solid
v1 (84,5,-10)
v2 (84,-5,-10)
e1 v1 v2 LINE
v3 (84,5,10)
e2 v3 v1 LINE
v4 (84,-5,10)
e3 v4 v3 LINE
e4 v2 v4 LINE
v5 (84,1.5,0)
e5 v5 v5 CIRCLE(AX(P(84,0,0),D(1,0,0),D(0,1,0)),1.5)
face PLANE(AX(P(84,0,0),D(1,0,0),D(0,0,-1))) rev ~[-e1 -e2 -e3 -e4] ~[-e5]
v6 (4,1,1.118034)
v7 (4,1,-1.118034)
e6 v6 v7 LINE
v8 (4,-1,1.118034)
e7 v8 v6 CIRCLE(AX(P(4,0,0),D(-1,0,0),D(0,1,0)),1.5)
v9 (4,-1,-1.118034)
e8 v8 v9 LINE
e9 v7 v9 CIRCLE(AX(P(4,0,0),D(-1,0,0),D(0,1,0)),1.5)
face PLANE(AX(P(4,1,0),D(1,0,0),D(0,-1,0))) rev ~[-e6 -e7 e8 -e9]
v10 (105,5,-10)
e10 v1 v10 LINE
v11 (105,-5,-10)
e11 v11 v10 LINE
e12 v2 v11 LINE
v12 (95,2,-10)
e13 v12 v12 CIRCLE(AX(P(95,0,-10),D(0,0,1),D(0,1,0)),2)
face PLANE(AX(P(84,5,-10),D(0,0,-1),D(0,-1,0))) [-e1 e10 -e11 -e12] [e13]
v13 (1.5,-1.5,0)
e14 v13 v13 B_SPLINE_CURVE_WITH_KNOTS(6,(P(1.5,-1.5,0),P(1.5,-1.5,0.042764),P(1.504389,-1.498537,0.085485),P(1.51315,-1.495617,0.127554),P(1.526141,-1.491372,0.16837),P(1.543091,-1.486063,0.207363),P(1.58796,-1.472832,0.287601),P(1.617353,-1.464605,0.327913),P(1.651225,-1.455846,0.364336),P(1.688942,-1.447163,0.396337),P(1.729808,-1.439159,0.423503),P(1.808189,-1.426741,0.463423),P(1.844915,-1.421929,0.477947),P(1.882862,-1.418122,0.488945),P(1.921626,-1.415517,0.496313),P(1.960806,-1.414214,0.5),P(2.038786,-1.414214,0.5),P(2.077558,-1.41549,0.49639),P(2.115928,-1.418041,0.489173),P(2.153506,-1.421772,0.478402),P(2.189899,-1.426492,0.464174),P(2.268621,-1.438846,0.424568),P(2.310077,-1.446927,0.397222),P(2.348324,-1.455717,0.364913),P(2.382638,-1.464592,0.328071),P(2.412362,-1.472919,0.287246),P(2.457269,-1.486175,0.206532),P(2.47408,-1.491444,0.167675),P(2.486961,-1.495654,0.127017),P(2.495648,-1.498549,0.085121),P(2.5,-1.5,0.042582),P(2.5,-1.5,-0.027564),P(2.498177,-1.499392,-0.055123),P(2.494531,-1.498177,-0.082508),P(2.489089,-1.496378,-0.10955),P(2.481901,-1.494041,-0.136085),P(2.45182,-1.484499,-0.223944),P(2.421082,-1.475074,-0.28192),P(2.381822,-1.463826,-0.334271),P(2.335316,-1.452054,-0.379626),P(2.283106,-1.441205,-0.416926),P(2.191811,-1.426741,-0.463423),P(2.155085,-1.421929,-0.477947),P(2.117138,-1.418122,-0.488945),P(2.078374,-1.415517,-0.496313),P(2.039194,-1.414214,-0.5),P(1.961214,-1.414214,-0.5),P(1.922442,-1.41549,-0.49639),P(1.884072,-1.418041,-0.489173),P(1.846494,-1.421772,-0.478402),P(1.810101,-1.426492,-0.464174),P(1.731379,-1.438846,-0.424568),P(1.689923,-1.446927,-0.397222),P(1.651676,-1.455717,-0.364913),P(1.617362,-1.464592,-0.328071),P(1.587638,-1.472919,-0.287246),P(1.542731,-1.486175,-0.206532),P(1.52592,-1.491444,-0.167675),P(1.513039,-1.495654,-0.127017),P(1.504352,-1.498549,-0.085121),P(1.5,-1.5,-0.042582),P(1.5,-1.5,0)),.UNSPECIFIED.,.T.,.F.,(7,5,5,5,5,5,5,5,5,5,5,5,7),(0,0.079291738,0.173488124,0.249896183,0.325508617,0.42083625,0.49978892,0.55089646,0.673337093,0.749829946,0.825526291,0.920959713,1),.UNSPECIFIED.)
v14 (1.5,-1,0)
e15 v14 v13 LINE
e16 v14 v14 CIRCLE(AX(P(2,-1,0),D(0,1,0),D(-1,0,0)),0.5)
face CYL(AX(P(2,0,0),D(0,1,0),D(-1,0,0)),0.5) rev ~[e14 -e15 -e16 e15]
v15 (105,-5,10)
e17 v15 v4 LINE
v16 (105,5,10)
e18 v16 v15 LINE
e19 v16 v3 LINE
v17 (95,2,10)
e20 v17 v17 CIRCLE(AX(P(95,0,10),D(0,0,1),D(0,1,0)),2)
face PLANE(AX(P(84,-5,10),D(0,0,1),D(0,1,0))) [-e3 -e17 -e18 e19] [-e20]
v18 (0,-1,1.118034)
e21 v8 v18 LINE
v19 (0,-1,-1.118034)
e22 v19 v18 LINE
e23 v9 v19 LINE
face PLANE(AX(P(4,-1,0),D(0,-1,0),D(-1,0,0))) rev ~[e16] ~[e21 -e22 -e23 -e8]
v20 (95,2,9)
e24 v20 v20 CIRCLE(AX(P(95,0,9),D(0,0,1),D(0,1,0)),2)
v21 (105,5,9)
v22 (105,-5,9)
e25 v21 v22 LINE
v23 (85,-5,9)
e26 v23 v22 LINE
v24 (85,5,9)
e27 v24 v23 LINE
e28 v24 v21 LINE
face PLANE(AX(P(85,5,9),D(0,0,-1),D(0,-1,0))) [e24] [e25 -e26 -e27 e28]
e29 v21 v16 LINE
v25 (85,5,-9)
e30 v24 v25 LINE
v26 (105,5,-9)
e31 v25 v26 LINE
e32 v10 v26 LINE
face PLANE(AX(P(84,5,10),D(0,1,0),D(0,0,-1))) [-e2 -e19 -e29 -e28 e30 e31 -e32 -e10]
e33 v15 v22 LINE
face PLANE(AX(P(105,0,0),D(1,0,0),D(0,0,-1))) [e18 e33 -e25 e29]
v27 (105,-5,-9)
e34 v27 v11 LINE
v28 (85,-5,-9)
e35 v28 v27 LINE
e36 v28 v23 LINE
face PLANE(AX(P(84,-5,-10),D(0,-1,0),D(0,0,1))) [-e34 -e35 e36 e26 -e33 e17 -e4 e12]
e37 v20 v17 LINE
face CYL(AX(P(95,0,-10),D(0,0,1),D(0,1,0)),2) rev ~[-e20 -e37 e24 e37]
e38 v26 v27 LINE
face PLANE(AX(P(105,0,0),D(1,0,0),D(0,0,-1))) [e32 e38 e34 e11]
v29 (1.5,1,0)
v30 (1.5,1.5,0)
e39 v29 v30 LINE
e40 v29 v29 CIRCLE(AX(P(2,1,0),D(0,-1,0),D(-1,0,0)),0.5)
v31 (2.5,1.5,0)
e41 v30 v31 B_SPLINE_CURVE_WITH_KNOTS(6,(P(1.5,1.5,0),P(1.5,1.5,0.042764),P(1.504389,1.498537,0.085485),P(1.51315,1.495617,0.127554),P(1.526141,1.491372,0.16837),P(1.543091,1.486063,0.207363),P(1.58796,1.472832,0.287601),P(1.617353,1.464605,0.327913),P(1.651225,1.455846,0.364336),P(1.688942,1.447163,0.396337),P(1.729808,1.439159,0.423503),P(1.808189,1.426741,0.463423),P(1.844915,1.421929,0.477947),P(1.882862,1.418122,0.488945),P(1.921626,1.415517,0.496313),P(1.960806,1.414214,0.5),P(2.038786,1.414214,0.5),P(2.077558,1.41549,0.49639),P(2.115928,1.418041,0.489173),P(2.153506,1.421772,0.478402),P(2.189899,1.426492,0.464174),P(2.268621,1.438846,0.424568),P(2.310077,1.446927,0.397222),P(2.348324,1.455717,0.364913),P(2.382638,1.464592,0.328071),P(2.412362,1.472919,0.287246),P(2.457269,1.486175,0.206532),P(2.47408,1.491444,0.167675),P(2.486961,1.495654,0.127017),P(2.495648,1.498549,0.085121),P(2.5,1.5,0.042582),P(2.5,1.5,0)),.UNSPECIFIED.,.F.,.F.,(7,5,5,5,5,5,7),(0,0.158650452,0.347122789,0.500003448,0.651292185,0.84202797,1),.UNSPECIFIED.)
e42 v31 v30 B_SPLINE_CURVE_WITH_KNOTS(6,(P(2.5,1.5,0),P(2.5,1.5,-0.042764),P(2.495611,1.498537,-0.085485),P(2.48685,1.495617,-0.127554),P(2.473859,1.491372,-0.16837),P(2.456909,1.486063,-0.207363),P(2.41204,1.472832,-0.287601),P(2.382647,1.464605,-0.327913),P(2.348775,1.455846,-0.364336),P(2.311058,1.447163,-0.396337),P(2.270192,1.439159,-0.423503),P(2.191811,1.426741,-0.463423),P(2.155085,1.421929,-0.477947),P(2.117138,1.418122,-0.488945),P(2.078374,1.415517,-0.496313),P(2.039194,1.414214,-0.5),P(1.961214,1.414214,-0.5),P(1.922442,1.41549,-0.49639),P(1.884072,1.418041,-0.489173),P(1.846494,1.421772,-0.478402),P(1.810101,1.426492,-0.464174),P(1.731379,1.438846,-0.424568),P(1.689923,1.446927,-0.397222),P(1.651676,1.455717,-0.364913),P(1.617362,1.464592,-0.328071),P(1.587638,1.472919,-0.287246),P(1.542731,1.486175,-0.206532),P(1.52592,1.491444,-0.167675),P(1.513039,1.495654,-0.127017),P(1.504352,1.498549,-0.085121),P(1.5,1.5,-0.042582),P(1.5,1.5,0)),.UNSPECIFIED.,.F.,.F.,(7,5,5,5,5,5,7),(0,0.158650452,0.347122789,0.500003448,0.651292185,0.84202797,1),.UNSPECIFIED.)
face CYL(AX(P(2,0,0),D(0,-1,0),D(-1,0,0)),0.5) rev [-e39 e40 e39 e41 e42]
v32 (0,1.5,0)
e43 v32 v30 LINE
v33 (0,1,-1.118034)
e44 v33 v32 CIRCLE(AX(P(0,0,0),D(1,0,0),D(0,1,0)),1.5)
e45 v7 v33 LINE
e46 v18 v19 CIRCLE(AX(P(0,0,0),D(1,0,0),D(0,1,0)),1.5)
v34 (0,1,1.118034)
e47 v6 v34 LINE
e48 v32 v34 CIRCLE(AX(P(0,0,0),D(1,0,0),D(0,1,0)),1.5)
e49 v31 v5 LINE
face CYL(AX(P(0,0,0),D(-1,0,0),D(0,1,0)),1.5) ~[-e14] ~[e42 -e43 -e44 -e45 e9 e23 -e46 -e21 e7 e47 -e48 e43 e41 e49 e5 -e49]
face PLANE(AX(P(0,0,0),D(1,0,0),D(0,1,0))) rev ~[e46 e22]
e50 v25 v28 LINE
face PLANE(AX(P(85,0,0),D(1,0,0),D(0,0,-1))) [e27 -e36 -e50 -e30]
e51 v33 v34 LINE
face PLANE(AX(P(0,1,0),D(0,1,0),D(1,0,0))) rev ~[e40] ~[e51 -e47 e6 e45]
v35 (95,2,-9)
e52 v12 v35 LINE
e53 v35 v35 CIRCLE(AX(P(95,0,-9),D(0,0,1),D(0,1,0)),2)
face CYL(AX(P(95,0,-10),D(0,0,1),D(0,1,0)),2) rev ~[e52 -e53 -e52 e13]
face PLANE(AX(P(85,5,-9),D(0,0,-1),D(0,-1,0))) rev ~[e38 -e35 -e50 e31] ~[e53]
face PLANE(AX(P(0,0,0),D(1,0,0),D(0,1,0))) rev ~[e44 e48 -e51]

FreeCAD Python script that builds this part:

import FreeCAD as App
import Part
import Sketcher

V = App.Vector


def add_polygon(sketch, points):
    """Adds a closed chain of lines whose ends are joined by coincident constraints."""
    first, n = sketch.GeometryCount, len(points)
    for a, b in zip(points, points[1:] + points[:1]):
        sketch.addGeometry(Part.LineSegment(App.Vector(*a, 0), App.Vector(*b, 0)), False)
    for i in range(n):
        sketch.addConstraint(Sketcher.Constraint("Coincident", first + i, 2, first + (i + 1) % n, 1))

doc = App.newDocument("Part")
body = doc.addObject("PartDesign::Body", "Body")

# Sketch on YZ plane
sketch1 = body.newObject("Sketcher::SketchObject", "Sketch")
sketch1.AttachmentSupport = (doc.getObject("YZ_Plane"), [""])
sketch1.MapMode = "FlatFace"
sketch1.addGeometry(Part.Circle(V(0, 0, 0), V(0, 0, 1), 1.5), False)
sketch1.addConstraint([
    Sketcher.Constraint("Coincident", 0, 3, -1, 1),
    Sketcher.Constraint("Diameter", 0, 3.0),
])
pad1 = body.newObject("PartDesign::Pad", "Pad")
pad1.Profile = sketch1
pad1.Length = 84

# Sketch on YZ plane
sketch2 = body.newObject("Sketcher::SketchObject", "Sketch001")
sketch2.AttachmentSupport = (doc.getObject("YZ_Plane"), [""])
sketch2.MapMode = "FlatFace"
sketch2.AttachmentOffset = App.Placement(V(0, 0, 84), App.Rotation())
add_polygon(sketch2, [(-5, 10), (-5, -10), (5, -10), (5, 10)])  # lines 0-3
sketch2.addConstraint([
    Sketcher.Constraint("Vertical", 0),
    Sketcher.Constraint("Horizontal", 1),
    Sketcher.Constraint("Vertical", 2),
    Sketcher.Constraint("Horizontal", 3),
    Sketcher.Constraint("Symmetric", 0, 2, 2, 2, -1, 1),
    Sketcher.Constraint("DistanceX", 1, 1, 1, 2, 10.0),
    Sketcher.Constraint("DistanceY", 0, 2, 0, 1, 20.0),
])
pad2 = body.newObject("PartDesign::Pad", "Pad001")
pad2.Profile = sketch2
pad2.Length = 1

# Sketch on YZ plane
sketch3 = body.newObject("Sketcher::SketchObject", "Sketch002")
sketch3.AttachmentSupport = (doc.getObject("YZ_Plane"), [""])
sketch3.MapMode = "FlatFace"
sketch3.AttachmentOffset = App.Placement(V(0, 0, 85), App.Rotation())
add_polygon(sketch3, [(5, 10), (-5, 10), (-5, 9), (5, 9)])  # lines 0-3
add_polygon(sketch3, [(5, -9), (-5, -9), (-5, -10), (5, -10)])  # lines 4-7
sketch3.addConstraint([
    Sketcher.Constraint("Horizontal", 0),
    Sketcher.Constraint("Vertical", 1),
    Sketcher.Constraint("Horizontal", 2),
    Sketcher.Constraint("Vertical", 3),
    Sketcher.Constraint("Horizontal", 4),
    Sketcher.Constraint("Vertical", 5),
    Sketcher.Constraint("Horizontal", 6),
    Sketcher.Constraint("Vertical", 7),
    Sketcher.Constraint("Symmetric", 2, 2, 4, 2, -1, 1),
    Sketcher.Constraint("Symmetric", 0, 2, 6, 2, -1, 1),
    Sketcher.Constraint("Vertical", 1, 2, 4, 2),
    Sketcher.Constraint("DistanceY", 1, 2, 1, 1, 1.0),
    Sketcher.Constraint("DistanceX", 0, 2, 0, 1, 10.0),
    Sketcher.Constraint("DistanceY", -1, 1, 0, 2, 10.0),
])
pad3 = body.newObject("PartDesign::Pad", "Pad002")
pad3.Profile = sketch3
pad3.Length = 20

# Sketch on XY plane
sketch4 = body.newObject("Sketcher::SketchObject", "Sketch003")
sketch4.AttachmentSupport = (doc.getObject("XY_Plane"), [""])
sketch4.MapMode = "FlatFace"
sketch4.AttachmentOffset = App.Placement(V(0, 0, -10), App.Rotation())
sketch4.addGeometry(Part.Circle(V(95, 0, 0), V(0, 0, 1), 2), False)
sketch4.addConstraint([
    Sketcher.Constraint("PointOnObject", 0, 3, -1),
    Sketcher.Constraint("Diameter", 0, 4.0),
    Sketcher.Constraint("DistanceX", -1, 1, 0, 3, 95.0),
])
doc.recompute()
hole = body.newObject("PartDesign::Hole", "Hole")
hole.Profile = sketch4
hole.ThreadType = "None"
hole.Diameter = 4
hole.DepthType = "ThroughAll"
hole.Reversed = True

# Sketch on XY plane
sketch5 = body.newObject("Sketcher::SketchObject", "Sketch004")
sketch5.AttachmentSupport = (doc.getObject("XY_Plane"), [""])
sketch5.MapMode = "FlatFace"
add_polygon(sketch5, [(4, 1), (0, 1), (0, -1), (4, -1)])  # lines 0-3
sketch5.addConstraint([
    Sketcher.Constraint("Horizontal", 0),
    Sketcher.Constraint("Vertical", 1),
    Sketcher.Constraint("Horizontal", 2),
    Sketcher.Constraint("Vertical", 3),
    Sketcher.Constraint("Symmetric", 0, 2, 1, 2, -1, 1),
    Sketcher.Constraint("DistanceX", 0, 2, 0, 1, 4.0),
    Sketcher.Constraint("DistanceY", 1, 2, 1, 1, 2.0),
])
pocket1 = body.newObject("PartDesign::Pocket", "Pocket")
pocket1.Profile = sketch5
pocket1.Type = "ThroughAll"
pocket1.Midplane = True

# Sketch on XZ plane
sketch6 = body.newObject("Sketcher::SketchObject", "Sketch005")
sketch6.AttachmentSupport = (doc.getObject("XZ_Plane"), [""])
sketch6.MapMode = "FlatFace"
sketch6.addGeometry(Part.Circle(V(2, 0, 0), V(0, 0, 1), 0.5), False)
sketch6.addConstraint([
    Sketcher.Constraint("PointOnObject", 0, 3, -1),
    Sketcher.Constraint("Diameter", 0, 1.0),
    Sketcher.Constraint("DistanceX", -1, 1, 0, 3, 2.0),
])
pocket2 = body.newObject("PartDesign::Pocket", "Pocket001")
pocket2.Profile = sketch6
pocket2.Length = 10
pocket2.Midplane = True

doc.recompute()
